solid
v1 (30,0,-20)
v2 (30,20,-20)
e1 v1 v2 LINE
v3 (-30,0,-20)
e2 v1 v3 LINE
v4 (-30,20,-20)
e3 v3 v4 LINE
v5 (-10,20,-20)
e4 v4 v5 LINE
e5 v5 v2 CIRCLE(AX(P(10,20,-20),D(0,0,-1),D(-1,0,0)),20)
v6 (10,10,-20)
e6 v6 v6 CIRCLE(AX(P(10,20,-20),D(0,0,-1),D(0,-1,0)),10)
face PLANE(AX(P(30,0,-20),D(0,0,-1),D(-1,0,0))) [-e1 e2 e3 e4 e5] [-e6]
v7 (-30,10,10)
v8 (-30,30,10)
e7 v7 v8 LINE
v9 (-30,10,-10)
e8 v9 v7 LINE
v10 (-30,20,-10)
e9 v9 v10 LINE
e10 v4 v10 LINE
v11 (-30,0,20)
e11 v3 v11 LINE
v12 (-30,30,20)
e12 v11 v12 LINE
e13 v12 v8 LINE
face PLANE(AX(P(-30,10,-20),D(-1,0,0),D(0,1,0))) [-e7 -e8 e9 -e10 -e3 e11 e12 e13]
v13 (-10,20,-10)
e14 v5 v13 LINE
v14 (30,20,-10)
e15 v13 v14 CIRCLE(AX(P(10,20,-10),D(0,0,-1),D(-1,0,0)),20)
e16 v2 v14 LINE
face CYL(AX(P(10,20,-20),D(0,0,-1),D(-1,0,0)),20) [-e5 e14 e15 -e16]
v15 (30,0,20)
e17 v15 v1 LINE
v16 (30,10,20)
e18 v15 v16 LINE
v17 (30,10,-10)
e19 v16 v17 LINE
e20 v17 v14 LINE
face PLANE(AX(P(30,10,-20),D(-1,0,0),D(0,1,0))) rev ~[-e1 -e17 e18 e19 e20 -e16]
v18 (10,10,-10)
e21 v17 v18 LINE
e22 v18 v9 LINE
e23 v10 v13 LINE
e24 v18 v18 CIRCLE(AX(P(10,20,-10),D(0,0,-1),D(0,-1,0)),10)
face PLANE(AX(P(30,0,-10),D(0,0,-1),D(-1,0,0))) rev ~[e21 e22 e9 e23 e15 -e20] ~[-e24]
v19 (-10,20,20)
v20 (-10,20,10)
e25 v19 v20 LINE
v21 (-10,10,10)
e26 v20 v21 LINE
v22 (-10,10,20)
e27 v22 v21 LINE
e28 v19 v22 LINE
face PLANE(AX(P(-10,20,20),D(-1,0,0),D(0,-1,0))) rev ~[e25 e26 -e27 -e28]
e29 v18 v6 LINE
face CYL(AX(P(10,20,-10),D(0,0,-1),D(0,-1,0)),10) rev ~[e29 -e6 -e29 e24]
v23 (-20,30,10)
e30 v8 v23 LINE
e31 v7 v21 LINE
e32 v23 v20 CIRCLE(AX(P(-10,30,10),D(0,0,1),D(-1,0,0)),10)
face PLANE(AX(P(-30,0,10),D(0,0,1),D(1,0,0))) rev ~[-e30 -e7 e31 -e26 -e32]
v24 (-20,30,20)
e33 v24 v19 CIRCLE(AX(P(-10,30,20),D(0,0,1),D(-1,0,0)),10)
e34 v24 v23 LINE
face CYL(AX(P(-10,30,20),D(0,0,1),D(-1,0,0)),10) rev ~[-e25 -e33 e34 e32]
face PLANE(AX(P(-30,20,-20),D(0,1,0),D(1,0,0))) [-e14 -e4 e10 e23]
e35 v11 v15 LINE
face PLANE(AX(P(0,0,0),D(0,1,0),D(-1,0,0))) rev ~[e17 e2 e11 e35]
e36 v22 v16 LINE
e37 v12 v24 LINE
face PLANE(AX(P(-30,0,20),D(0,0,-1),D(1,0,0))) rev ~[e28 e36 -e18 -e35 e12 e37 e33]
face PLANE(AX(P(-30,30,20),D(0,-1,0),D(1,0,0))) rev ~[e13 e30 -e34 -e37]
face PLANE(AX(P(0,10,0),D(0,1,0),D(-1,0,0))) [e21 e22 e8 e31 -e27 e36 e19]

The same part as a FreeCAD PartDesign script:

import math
import FreeCAD as App
import Part
import Sketcher

V = App.Vector

doc = App.newDocument("Part")
body = doc.addObject("PartDesign::Body", "Body")

# Sketch on XZ plane
sketch1 = body.newObject("Sketcher::SketchObject", "Sketch")
sketch1.AttachmentSupport = (doc.getObject("XZ_Plane"), [""])
sketch1.MapMode = "FlatFace"
sketch1.addGeometry(Part.LineSegment(V(-30, -20, 0), V(-30, 20, 0)), False)
sketch1.addGeometry(Part.LineSegment(V(-30, 20, 0), V(30, 20, 0)), False)
sketch1.addGeometry(Part.LineSegment(V(30, 20, 0), V(30, -20, 0)), False)
sketch1.addGeometry(Part.LineSegment(V(30, -20, 0), V(-30, -20, 0)), False)
sketch1.addConstraint(Sketcher.Constraint("Coincident", 0, 2, 1, 1))
sketch1.addConstraint(Sketcher.Constraint("Coincident", 1, 2, 2, 1))
sketch1.addConstraint(Sketcher.Constraint("Coincident", 2, 2, 3, 1))
sketch1.addConstraint(Sketcher.Constraint("Coincident", 3, 2, 0, 1))
sketch1.addConstraint(Sketcher.Constraint("Vertical", 0))
sketch1.addConstraint(Sketcher.Constraint("Horizontal", 1))
sketch1.addConstraint(Sketcher.Constraint("Vertical", 2))
sketch1.addConstraint(Sketcher.Constraint("Horizontal", 3))
sketch1.addConstraint(Sketcher.Constraint("Symmetric", 0, 2, 2, 2, -1, 1))
sketch1.addConstraint(Sketcher.Constraint("DistanceX", 1, 1, 1, 2, 60.0))
sketch1.addConstraint(Sketcher.Constraint("DistanceY", 0, 1, 0, 2, 40.0))
pad1 = body.newObject("PartDesign::Pad", "Pad")
pad1.Profile = sketch1
pad1.Length = 10
pad1.Reversed = True

# Sketch on XY plane
sketch2 = body.newObject("Sketcher::SketchObject", "Sketch001")
sketch2.AttachmentSupport = (doc.getObject("XY_Plane"), [""])
sketch2.MapMode = "FlatFace"
sketch2.AttachmentOffset = App.Placement(V(0, 0, 20), App.Rotation())
sketch2.addGeometry(Part.LineSegment(V(-30, 30, 0), V(-30, 10, 0)), False)
sketch2.addGeometry(Part.LineSegment(V(-30, 10, 0), V(-10, 10, 0)), False)
sketch2.addGeometry(Part.LineSegment(V(-10, 10, 0), V(-10, 20, 0)), False)
sketch2.addGeometry(Part.ArcOfCircle(Part.Circle(V(-10, 30, 0), V(0, 0, 1), 10), math.radians(180), math.radians(270)), False)
sketch2.addGeometry(Part.LineSegment(V(-20, 30, 0), V(-30, 30, 0)), False)
sketch2.addConstraint(Sketcher.Constraint("Coincident", 0, 2, 1, 1))
sketch2.addConstraint(Sketcher.Constraint("Coincident", 1, 2, 2, 1))
sketch2.addConstraint(Sketcher.Constraint("Coincident", 2, 2, 3, 2))
sketch2.addConstraint(Sketcher.Constraint("Coincident", 3, 1, 4, 1))
sketch2.addConstraint(Sketcher.Constraint("Coincident", 4, 2, 0, 1))
sketch2.addConstraint(Sketcher.Constraint("Vertical", 0))
sketch2.addConstraint(Sketcher.Constraint("Horizontal", 1))
sketch2.addConstraint(Sketcher.Constraint("Vertical", 2))
sketch2.addConstraint(Sketcher.Constraint("Horizontal", 4))
sketch2.addConstraint(Sketcher.Constraint("Vertical", 3, 3, 1, 2))
sketch2.addConstraint(Sketcher.Constraint("Equal", 1, 0))
sketch2.addConstraint(Sketcher.Constraint("Equal", 4, 2))
sketch2.addConstraint(Sketcher.Constraint("Radius", 3, 10.0))
sketch2.addConstraint(Sketcher.Constraint("DistanceX", 1, 1, 1, 2, 20.0))
sketch2.addConstraint(Sketcher.Constraint("DistanceX", 3, 3, -1, 1, 10.0))
sketch2.addConstraint(Sketcher.Constraint("DistanceY", -1, 1, 3, 3, 30.0))
pad2 = body.newObject("PartDesign::Pad", "Pad001")
pad2.Profile = sketch2
pad2.Length = 10
pad2.Reversed = True

# Sketch on XY plane
sketch3 = body.newObject("Sketcher::SketchObject", "Sketch002")
sketch3.AttachmentSupport = (doc.getObject("XY_Plane"), [""])
sketch3.MapMode = "FlatFace"
sketch3.AttachmentOffset = App.Placement(V(0, 0, -20), App.Rotation())
sketch3.addGeometry(Part.LineSegment(V(30, 10, 0), V(-30, 10, 0)), False)
sketch3.addGeometry(Part.LineSegment(V(-30, 10, 0), V(-30, 20, 0)), False)
sketch3.addGeometry(Part.LineSegment(V(-30, 20, 0), V(-10, 20, 0)), False)
sketch3.addGeometry(Part.ArcOfCircle(Part.Circle(V(10, 20, 0), V(0, 0, 1), 20), math.radians(0), math.radians(180)), False)
sketch3.addGeometry(Part.LineSegment(V(30, 20, 0), V(30, 10, 0)), False)
sketch3.addConstraint(Sketcher.Constraint("Coincident", 0, 2, 1, 1))
sketch3.addConstraint(Sketcher.Constraint("Coincident", 1, 2, 2, 1))
sketch3.addConstraint(Sketcher.Constraint("Coincident", 2, 2, 3, 2))
sketch3.addConstraint(Sketcher.Constraint("Tangent", 3, 1, 4, 1))
sketch3.addConstraint(Sketcher.Constraint("Coincident", 4, 2, 0, 1))
sketch3.addConstraint(Sketcher.Constraint("Horizontal", 0))
sketch3.addConstraint(Sketcher.Constraint("Vertical", 1))
sketch3.addConstraint(Sketcher.Constraint("Horizontal", 2))
sketch3.addConstraint(Sketcher.Constraint("Vertical", 4))
sketch3.addConstraint(Sketcher.Constraint("Symmetric", 1, 2, 3, 1, -2))
sketch3.addConstraint(Sketcher.Constraint("Radius", 3, 20.0))
sketch3.addConstraint(Sketcher.Constraint("DistanceX", 2, 1, 2, 2, 20.0))
sketch3.addConstraint(Sketcher.Constraint("DistanceY", -1, 1, 3, 3, 20.0))
sketch3.addConstraint(Sketcher.Constraint("DistanceY", 1, 1, 1, 2, 10.0))
pad3 = body.newObject("PartDesign::Pad", "Pad002")
pad3.Profile = sketch3
pad3.Length = 10

# Sketch on XY plane
sketch4 = body.newObject("Sketcher::SketchObject", "Sketch003")
sketch4.AttachmentSupport = (doc.getObject("XY_Plane"), [""])
sketch4.MapMode = "FlatFace"
sketch4.AttachmentOffset = App.Placement(V(0, 0, -10), App.Rotation())
sketch4.addGeometry(Part.Circle(V(10, 20, 0), V(0, 0, 1), 10), False)
sketch4.addConstraint(Sketcher.Constraint("Diameter", 0, 20.0))
sketch4.addConstraint(Sketcher.Constraint("DistanceX", -1, 1, 0, 3, 10.0))
sketch4.addConstraint(Sketcher.Constraint("DistanceY", -1, 1, 0, 3, 20.0))
doc.recompute()
hole = body.newObject("PartDesign::Hole", "Hole")
hole.Profile = sketch4
hole.ThreadType = "None"
hole.Diameter = 20
hole.DepthType = "ThroughAll"

doc.recompute()
